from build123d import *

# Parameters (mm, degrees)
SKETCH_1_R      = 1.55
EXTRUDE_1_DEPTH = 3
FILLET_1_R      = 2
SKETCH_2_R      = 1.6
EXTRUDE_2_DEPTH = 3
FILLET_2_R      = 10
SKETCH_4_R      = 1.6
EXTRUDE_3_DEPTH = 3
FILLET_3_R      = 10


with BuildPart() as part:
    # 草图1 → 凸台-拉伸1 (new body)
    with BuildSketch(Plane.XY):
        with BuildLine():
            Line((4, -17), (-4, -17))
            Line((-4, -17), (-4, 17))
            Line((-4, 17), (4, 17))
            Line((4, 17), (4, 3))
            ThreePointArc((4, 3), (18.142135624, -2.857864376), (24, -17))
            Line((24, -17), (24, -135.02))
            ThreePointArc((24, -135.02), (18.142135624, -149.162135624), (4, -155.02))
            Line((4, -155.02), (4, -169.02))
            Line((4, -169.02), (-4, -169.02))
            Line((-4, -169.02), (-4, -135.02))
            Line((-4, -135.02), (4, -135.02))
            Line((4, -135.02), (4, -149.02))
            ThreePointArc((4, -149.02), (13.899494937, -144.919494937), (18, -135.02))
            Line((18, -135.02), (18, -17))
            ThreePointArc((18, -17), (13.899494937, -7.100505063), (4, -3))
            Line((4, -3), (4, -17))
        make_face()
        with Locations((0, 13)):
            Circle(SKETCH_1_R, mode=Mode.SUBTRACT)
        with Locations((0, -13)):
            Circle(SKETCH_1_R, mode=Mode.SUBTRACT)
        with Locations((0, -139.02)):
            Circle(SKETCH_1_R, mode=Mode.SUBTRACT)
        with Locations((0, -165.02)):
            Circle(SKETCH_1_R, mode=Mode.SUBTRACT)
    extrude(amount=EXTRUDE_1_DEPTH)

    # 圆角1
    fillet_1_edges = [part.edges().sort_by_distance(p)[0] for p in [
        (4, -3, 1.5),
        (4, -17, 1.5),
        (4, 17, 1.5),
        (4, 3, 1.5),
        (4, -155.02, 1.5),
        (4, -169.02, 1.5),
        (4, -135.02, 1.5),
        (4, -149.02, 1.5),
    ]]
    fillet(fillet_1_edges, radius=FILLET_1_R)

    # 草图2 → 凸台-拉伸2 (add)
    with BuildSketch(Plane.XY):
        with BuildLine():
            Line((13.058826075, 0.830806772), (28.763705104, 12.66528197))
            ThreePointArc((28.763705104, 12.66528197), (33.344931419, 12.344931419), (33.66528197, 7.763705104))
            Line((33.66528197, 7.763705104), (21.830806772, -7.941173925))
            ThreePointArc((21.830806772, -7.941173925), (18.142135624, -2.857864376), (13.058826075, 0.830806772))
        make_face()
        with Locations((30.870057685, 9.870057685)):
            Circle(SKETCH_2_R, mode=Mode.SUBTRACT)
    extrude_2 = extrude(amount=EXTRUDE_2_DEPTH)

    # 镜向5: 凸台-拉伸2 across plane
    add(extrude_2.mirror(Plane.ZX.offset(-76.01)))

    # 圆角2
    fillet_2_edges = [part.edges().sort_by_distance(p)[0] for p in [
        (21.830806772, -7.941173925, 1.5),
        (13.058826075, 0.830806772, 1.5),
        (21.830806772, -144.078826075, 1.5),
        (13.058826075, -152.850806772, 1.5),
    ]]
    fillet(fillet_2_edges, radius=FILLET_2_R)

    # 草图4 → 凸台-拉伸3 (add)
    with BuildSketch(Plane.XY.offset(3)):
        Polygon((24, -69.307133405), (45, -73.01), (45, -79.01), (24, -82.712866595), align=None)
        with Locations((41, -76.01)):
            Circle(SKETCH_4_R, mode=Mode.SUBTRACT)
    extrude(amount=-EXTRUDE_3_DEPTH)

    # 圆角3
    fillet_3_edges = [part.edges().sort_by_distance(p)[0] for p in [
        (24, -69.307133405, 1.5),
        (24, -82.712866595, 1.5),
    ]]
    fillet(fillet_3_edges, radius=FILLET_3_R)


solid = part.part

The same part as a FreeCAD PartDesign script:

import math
import FreeCAD as App
import Part
import Sketcher

V = App.Vector
Q = App.Units.Quantity


def edges_at(feature, points):
    """Names of the edges that pass closest to the given points."""
    edges = feature.Shape.Edges
    near = lambda p: min(range(len(edges)), key=lambda i: edges[i].distToShape(Part.Vertex(*p))[0])
    return sorted({f"Edge{near(p) + 1}" for p in points})


def add_polygon(sketch, points):
    """Adds a closed chain of lines whose ends are joined by coincident constraints."""
    first, n = sketch.GeometryCount, len(points)
    for a, b in zip(points, points[1:] + points[:1]):
        sketch.addGeometry(Part.LineSegment(App.Vector(*a, 0), App.Vector(*b, 0)), False)
    for i in range(n):
        sketch.addConstraint(Sketcher.Constraint("Coincident", first + i, 2, first + (i + 1) % n, 1))

doc = App.newDocument("Part")
params = doc.addObject("Spreadsheet::Sheet", "Params")
for row, (alias, value) in enumerate([
    ("sketch1_radius", "14 mm"),
    ("sketch1_radius2", "20 mm"),
    ("sketch1_diameter", "3.1 mm"),
    ("sketch1_width", "8 mm"),
    ("sketch1_height", "118.02 mm"),
    ("pad1_length", "3 mm"),
    ("fillet_radius", "2 mm"),
    ("sketch2_radius", "20 mm"),
    ("sketch2_diameter", "3.2 mm"),
    ("sketch2_radius2", "3.5 mm"),
    ("pad2_length", "3 mm"),
    ("fillet2_radius", "10 mm"),
    ("sketch3_diameter", "3.2 mm"),
    ("sketch3_height", "6 mm"),
    ("pad3_length", "3 mm"),
    ("fillet3_radius", "10 mm"),
], start=1):
    params.set(f"A{row}", alias)
    params.set(f"B{row}", "=" + value)
    params.setAlias(f"B{row}", alias)

body = doc.addObject("PartDesign::Body", "Body")

sketch1 = doc.addObject("Sketcher::SketchObject", "Sketch")
body.addObject(sketch1)
sketch1.AttachmentSupport = (doc.XY_Plane, [""])
sketch1.MapMode = "FlatFace"
sketch1.addGeometry(Part.LineSegment(V(-4, -17, 0), V(4, -17, 0)), False)
sketch1.addGeometry(Part.LineSegment(V(4, -17, 0), V(4, -3, 0)), False)
sketch1.addGeometry(Part.ArcOfCircle(Part.Circle(V(4, -17, 0), V(0, 0, 1), 14), math.radians(0), math.radians(90)), False)
sketch1.addGeometry(Part.LineSegment(V(18, -17, 0), V(18, -135, 0)), False)
sketch1.addGeometry(Part.ArcOfCircle(Part.Circle(V(4, -135, 0), V(0, 0, 1), 14), math.radians(-90), math.radians(0)), False)
sketch1.addGeometry(Part.LineSegment(V(4, -149, 0), V(4, -135, 0)), False)
sketch1.addGeometry(Part.LineSegment(V(4, -135, 0), V(-4, -135, 0)), False)
sketch1.addGeometry(Part.LineSegment(V(-4, -135, 0), V(-4, -169, 0)), False)
sketch1.addGeometry(Part.LineSegment(V(-4, -169, 0), V(4, -169, 0)), False)
sketch1.addGeometry(Part.LineSegment(V(4, -169, 0), V(4, -155, 0)), False)
sketch1.addGeometry(Part.ArcOfCircle(Part.Circle(V(4, -135, 0), V(0, 0, 1), 20), math.radians(-90), math.radians(0)), False)
sketch1.addGeometry(Part.LineSegment(V(24, -135, 0), V(24, -17, 0)), False)
sketch1.addGeometry(Part.ArcOfCircle(Part.Circle(V(4, -17, 0), V(0, 0, 1), 20), math.radians(0), math.radians(90)), False)
sketch1.addGeometry(Part.LineSegment(V(4, 3, 0), V(4, 17, 0)), False)
sketch1.addGeometry(Part.LineSegment(V(4, 17, 0), V(-4, 17, 0)), False)
sketch1.addGeometry(Part.LineSegment(V(-4, 17, 0), V(-4, -17, 0)), False)
sketch1.addGeometry(Part.Circle(V(0, -165, 0), V(0, 0, 1), 1.6), False)
sketch1.addGeometry(Part.Circle(V(0, -139, 0), V(0, 0, 1), 1.6), False)
sketch1.addGeometry(Part.Circle(V(0, -13, 0), V(0, 0, 1), 1.6), False)
sketch1.addGeometry(Part.Circle(V(0, 13, 0), V(0, 0, 1), 1.6), False)
sketch1.addConstraint(Sketcher.Constraint("Coincident", 0, 2, 1, 1))
sketch1.addConstraint(Sketcher.Constraint("Coincident", 1, 2, 2, 2))
sketch1.addConstraint(Sketcher.Constraint("Tangent", 2, 1, 3, 1))
sketch1.addConstraint(Sketcher.Constraint("Tangent", 3, 2, 4, 2))
sketch1.addConstraint(Sketcher.Constraint("Coincident", 4, 1, 5, 1))
sketch1.addConstraint(Sketcher.Constraint("Coincident", 5, 2, 6, 1))
sketch1.addConstraint(Sketcher.Constraint("Coincident", 6, 2, 7, 1))
sketch1.addConstraint(Sketcher.Constraint("Coincident", 7, 2, 8, 1))
sketch1.addConstraint(Sketcher.Constraint("Coincident", 8, 2, 9, 1))
sketch1.addConstraint(Sketcher.Constraint("Coincident", 9, 2, 10, 1))
sketch1.addConstraint(Sketcher.Constraint("Tangent", 10, 2, 11, 1))
sketch1.addConstraint(Sketcher.Constraint("Tangent", 11, 2, 12, 1))
sketch1.addConstraint(Sketcher.Constraint("Coincident", 12, 2, 13, 1))
sketch1.addConstraint(Sketcher.Constraint("Coincident", 13, 2, 14, 1))
sketch1.addConstraint(Sketcher.Constraint("Coincident", 14, 2, 15, 1))
sketch1.addConstraint(Sketcher.Constraint("Coincident", 15, 2, 0, 1))
sketch1.addConstraint(Sketcher.Constraint("Horizontal", 0))
sketch1.addConstraint(Sketcher.Constraint("Vertical", 1))
sketch1.addConstraint(Sketcher.Constraint("Vertical", 3))
sketch1.addConstraint(Sketcher.Constraint("Vertical", 5))
sketch1.addConstraint(Sketcher.Constraint("Horizontal", 6))
sketch1.addConstraint(Sketcher.Constraint("Vertical", 7))
sketch1.addConstraint(Sketcher.Constraint("Horizontal", 8))
sketch1.addConstraint(Sketcher.Constraint("Vertical", 9))
sketch1.addConstraint(Sketcher.Constraint("Vertical", 11))
sketch1.addConstraint(Sketcher.Constraint("Vertical", 13))
sketch1.addConstraint(Sketcher.Constraint("Horizontal", 14))
sketch1.addConstraint(Sketcher.Constraint("Vertical", 15))
sketch1.addConstraint(Sketcher.Constraint("Coincident", 10, 3, 4, 3))
sketch1.addConstraint(Sketcher.Constraint("Coincident", 12, 3, 2, 3))
sketch1.addConstraint(Sketcher.Constraint("Coincident", 0, 2, 2, 3))
sketch1.addConstraint(Sketcher.Constraint("Coincident", 5, 2, 4, 3))
sketch1.addConstraint(Sketcher.Constraint("Equal", 2, 4))
sketch1.addConstraint(Sketcher.Constraint("Equal", 16, 17))
sketch1.addConstraint(Sketcher.Constraint("Equal", 17, 18))
sketch1.addConstraint(Sketcher.Constraint("Equal", 18, 19))
sketch1.addConstraint(Sketcher.Constraint("Symmetric", 18, 3, 19, 3, -1, 1))
sketch1.addConstraint(Sketcher.Constraint("Symmetric", 0, 2, 14, 2, -1, 1))
sketch1.addConstraint(Sketcher.Constraint("Symmetric", 1, 2, 12, 2, -1))
sketch1.addConstraint(Sketcher.Constraint("PointOnObject", 16, 3, -2))
sketch1.addConstraint(Sketcher.Constraint("PointOnObject", 17, 3, -2))
sketch1.addConstraint(Sketcher.Constraint("PointOnObject", 18, 3, -2))
sketch1.addConstraint(Sketcher.Constraint("Vertical", 5, 2, 8, 2))
sketch1.addConstraint(Sketcher.Constraint("Vertical", 7, 2, 14, 2))
sketch1.addConstraint(Sketcher.Constraint("Equal", 5, 9))
sketch1.addConstraint(Sketcher.Constraint("Radius", 2, 14.0))
sketch1.addConstraint(Sketcher.Constraint("Radius", 10, 20.0))
sketch1.addConstraint(Sketcher.Constraint("Diameter", 16, 3.1))
sketch1.addConstraint(Sketcher.Constraint("DistanceX", 0, 1, 0, 2, 8.0))
sketch1.addConstraint(Sketcher.Constraint("DistanceY", 18, 3, -1, 1, 13.0))
sketch1.addConstraint(Sketcher.Constraint("DistanceY", 16, 3, 4, 3, 30.0))
sketch1.addConstraint(Sketcher.Constraint("DistanceY", 17, 3, 4, 3, 4.0))
sketch1.addConstraint(Sketcher.Constraint("DistanceY", 3, 2, 3, 1, 118.02))
sketch1.setExpression("Constraints[45]", "Params.sketch1_radius")
sketch1.setExpression("Constraints[46]", "Params.sketch1_radius2")
sketch1.setExpression("Constraints[47]", "Params.sketch1_diameter")
sketch1.setExpression("Constraints[48]", "Params.sketch1_width")
sketch1.setExpression("Constraints[52]", "Params.sketch1_height")
pad1 = doc.addObject("PartDesign::Pad", "Pad")
body.addObject(pad1)
pad1.Profile = sketch1
pad1.setExpression("Length", "Params.pad1_length")
doc.recompute()

fillet = doc.addObject("PartDesign::Fillet", "Fillet")
body.addObject(fillet)
fillet.Base = (pad1, edges_at(pad1, [
    (4, -3, 1.5),
    (4, -17, 1.5),
    (4, 17, 1.5),
    (4, 3, 1.5),
    (4, -155.02, 1.5),
    (4, -169.02, 1.5),
    (4, -135.02, 1.5),
    (4, -149.02, 1.5),
]))
fillet.setExpression("Radius", "Params.fillet_radius")

sketch2 = doc.addObject("Sketcher::SketchObject", "Sketch001")
body.addObject(sketch2)
sketch2.AttachmentSupport = (doc.XY_Plane, [""])
sketch2.MapMode = "FlatFace"
sketch2.addGeometry(Part.LineSegment(V(28.8, 12.7, 0), V(13.1, 0.8, 0)), False)
sketch2.addGeometry(Part.ArcOfCircle(Part.Circle(V(4, -17, 0), V(0, 0, 1), 20), math.radians(27), math.radians(63)), False)
sketch2.addGeometry(Part.LineSegment(V(21.8, -7.9, 0), V(33.7, 7.8, 0)), False)
sketch2.addGeometry(Part.ArcOfCircle(Part.Circle(V(30.9, 9.9, 0), V(0, 0, 1), 3.5), math.radians(-37), math.radians(127)), False)
sketch2.addGeometry(Part.Circle(V(30.9, 9.9, 0), V(0, 0, 1), 1.6), False)
sketch2.addConstraint(Sketcher.Constraint("Coincident", 0, 2, 1, 2))
sketch2.addConstraint(Sketcher.Constraint("Coincident", 1, 1, 2, 1))
sketch2.addConstraint(Sketcher.Constraint("Tangent", 2, 2, 3, 1))
sketch2.addConstraint(Sketcher.Constraint("Tangent", 3, 2, 0, 1))
sketch2.addConstraint(Sketcher.Constraint("Coincident", 4, 3, 3, 3))
sketch2.addConstraint(Sketcher.Constraint("Equal", 0, 2))
sketch2.addConstraint(Sketcher.Constraint("Radius", 1, 20.0))
sketch2.addConstraint(Sketcher.Constraint("Diameter", 4, 3.2))
sketch2.addConstraint(Sketcher.Constraint("Radius", 3, 3.5))
sketch2.addConstraint(Sketcher.Constraint("Angle", 0, Q("-143 deg")))
sketch2.addConstraint(Sketcher.Constraint("Angle", 2, Q("53 deg")))
sketch2.addConstraint(Sketcher.Constraint("DistanceX", -1, 1, 1, 3, 4.0))
sketch2.addConstraint(Sketcher.Constraint("DistanceY", 1, 3, -1, 1, 17.0))
sketch2.addConstraint(Sketcher.Constraint("DistanceY", 0, 2, 2, 2, 6.932898))
sketch2.setExpression("Constraints[6]", "Params.sketch2_radius")
sketch2.setExpression("Constraints[7]", "Params.sketch2_diameter")
sketch2.setExpression("Constraints[8]", "Params.sketch2_radius2")
pad2 = doc.addObject("PartDesign::Pad", "Pad001")
body.addObject(pad2)
pad2.Profile = sketch2
pad2.setExpression("Length", "Params.pad2_length")
doc.recompute()

datumplane = doc.addObject("PartDesign::Plane", "DatumPlane")
body.addObject(datumplane)
datumplane.AttachmentSupport = (doc.XZ_Plane, [""])
datumplane.MapMode = "FlatFace"
datumplane.AttachmentOffset = App.Placement(V(0, 0, 76.01), App.Rotation())
mirrored = doc.addObject("PartDesign::Mirrored", "Mirrored")
body.addObject(mirrored)
mirrored.Originals = [pad2]
mirrored.MirrorPlane = (datumplane, [""])
body.Tip = mirrored
doc.recompute()

fillet2 = doc.addObject("PartDesign::Fillet", "Fillet001")
body.addObject(fillet2)
fillet2.Base = (mirrored, edges_at(mirrored, [
    (21.831, -7.941, 1.5),
    (13.059, 0.831, 1.5),
    (21.831, -144.079, 1.5),
    (13.059, -152.851, 1.5),
]))
fillet2.setExpression("Radius", "Params.fillet2_radius")

sketch3 = doc.addObject("Sketcher::SketchObject", "Sketch002")
body.addObject(sketch3)
sketch3.AttachmentSupport = (doc.XY_Plane, [""])
sketch3.MapMode = "FlatFace"
sketch3.AttachmentOffset = App.Placement(V(0, 0, 3), App.Rotation())
add_polygon(sketch3, [(45, -73), (24, -69.3), (24, -82.7), (45, -79)])
sketch3.addGeometry(Part.Circle(V(41, -76, 0), V(0, 0, 1), 1.6), False)
sketch3.addConstraint(Sketcher.Constraint("Vertical", 1))
sketch3.addConstraint(Sketcher.Constraint("Vertical", 3))
sketch3.addConstraint(Sketcher.Constraint("Equal", 0, 2))
sketch3.addConstraint(Sketcher.Constraint("Diameter", 4, 3.2))
sketch3.addConstraint(Sketcher.Constraint("DistanceY", 3, 1, 3, 2, 6.0))
sketch3.addConstraint(Sketcher.Constraint("Angle", 0, Q("170 deg")))
sketch3.addConstraint(Sketcher.Constraint("DistanceX", -1, 1, 4, 3, 41.0))
sketch3.addConstraint(Sketcher.Constraint("DistanceX", -1, 1, 0, 2, 24.0))
sketch3.addConstraint(Sketcher.Constraint("DistanceX", -1, 1, 2, 2, 45.0))
sketch3.addConstraint(Sketcher.Constraint("DistanceY", 2, 2, 4, 3, 3.0))
sketch3.addConstraint(Sketcher.Constraint("DistanceY", 4, 3, -1, 1, 76.01))
sketch3.setExpression("Constraints[7]", "Params.sketch3_diameter")
sketch3.setExpression("Constraints[8]", "Params.sketch3_height")
pad3 = doc.addObject("PartDesign::Pad", "Pad002")
body.addObject(pad3)
pad3.Profile = sketch3
pad3.setExpression("Length", "Params.pad3_length")
pad3.Reversed = True
doc.recompute()

fillet3 = doc.addObject("PartDesign::Fillet", "Fillet002")
body.addObject(fillet3)
fillet3.Base = (pad3, edges_at(pad3, [(24, -69.307, 1.5), (24, -82.713, 1.5)]))
fillet3.setExpression("Radius", "Params.fillet3_radius")

doc.recompute()
